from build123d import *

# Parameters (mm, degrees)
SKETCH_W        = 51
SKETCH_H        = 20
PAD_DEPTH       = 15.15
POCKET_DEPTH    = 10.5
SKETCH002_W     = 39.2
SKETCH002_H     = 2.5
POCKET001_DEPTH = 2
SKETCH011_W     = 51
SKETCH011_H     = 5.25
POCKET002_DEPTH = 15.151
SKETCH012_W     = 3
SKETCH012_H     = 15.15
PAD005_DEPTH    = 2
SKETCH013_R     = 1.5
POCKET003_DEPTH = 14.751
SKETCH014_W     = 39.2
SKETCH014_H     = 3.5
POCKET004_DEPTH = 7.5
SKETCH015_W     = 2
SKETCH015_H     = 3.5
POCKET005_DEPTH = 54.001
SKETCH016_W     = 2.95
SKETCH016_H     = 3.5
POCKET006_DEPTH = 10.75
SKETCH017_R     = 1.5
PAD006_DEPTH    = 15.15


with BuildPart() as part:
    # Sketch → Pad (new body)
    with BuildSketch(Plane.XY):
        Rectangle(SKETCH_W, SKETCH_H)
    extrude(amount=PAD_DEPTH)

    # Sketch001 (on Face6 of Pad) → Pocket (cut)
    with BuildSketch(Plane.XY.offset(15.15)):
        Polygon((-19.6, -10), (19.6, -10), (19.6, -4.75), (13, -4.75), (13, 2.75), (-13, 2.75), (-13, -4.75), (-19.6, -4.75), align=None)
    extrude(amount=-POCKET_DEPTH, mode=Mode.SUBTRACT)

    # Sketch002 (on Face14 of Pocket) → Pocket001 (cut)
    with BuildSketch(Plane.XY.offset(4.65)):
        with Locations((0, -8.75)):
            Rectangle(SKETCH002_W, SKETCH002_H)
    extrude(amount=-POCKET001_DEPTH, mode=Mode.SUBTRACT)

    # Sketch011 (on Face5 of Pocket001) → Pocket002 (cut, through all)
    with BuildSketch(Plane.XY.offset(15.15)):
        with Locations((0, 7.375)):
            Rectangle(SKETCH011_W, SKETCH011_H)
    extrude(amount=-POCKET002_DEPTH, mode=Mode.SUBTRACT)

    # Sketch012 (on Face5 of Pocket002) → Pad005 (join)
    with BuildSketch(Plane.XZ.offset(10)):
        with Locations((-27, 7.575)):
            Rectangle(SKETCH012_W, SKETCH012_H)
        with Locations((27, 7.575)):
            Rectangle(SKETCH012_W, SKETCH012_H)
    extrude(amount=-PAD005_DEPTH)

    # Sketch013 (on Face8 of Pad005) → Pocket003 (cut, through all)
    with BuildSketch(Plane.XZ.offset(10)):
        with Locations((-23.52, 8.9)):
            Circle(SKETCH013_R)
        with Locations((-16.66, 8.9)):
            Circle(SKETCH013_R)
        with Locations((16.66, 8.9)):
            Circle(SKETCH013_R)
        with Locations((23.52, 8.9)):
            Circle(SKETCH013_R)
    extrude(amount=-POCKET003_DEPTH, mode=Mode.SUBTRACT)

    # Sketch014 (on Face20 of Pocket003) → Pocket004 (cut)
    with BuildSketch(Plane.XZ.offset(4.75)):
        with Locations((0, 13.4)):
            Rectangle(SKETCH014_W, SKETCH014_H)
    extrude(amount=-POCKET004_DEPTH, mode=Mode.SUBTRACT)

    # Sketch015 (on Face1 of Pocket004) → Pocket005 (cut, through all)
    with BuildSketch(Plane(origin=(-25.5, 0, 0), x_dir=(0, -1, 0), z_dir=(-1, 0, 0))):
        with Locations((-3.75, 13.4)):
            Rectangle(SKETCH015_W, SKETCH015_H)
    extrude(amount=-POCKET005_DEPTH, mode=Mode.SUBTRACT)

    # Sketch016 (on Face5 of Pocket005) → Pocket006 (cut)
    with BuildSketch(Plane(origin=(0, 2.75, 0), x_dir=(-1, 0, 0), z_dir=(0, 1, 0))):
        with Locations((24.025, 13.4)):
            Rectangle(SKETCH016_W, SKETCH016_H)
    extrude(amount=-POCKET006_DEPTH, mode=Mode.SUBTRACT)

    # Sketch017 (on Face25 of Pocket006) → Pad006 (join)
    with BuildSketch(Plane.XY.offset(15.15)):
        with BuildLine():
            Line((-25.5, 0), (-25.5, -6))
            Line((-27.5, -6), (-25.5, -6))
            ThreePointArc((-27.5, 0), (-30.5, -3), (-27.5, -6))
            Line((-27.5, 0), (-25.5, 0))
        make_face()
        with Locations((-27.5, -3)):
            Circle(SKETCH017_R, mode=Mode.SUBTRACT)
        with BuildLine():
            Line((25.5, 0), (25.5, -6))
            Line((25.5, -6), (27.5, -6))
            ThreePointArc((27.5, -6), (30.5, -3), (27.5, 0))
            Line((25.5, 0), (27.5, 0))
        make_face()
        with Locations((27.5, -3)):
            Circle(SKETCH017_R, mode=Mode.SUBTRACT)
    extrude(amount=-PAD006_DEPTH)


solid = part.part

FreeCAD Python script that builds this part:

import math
import FreeCAD as App
import Part
import Sketcher

V = App.Vector
Q = App.Units.Quantity


def add_polygon(sketch, points):
    """Adds a closed chain of lines whose ends are joined by coincident constraints."""
    first, n = sketch.GeometryCount, len(points)
    for a, b in zip(points, points[1:] + points[:1]):
        sketch.addGeometry(Part.LineSegment(App.Vector(*a, 0), App.Vector(*b, 0)), False)
    for i in range(n):
        sketch.addConstraint(Sketcher.Constraint("Coincident", first + i, 2, first + (i + 1) % n, 1))

doc = App.newDocument("Part")
body = doc.addObject("PartDesign::Body", "Body")

# Sketch on XY plane
sketch1 = body.newObject("Sketcher::SketchObject", "Sketch")
sketch1.AttachmentSupport = (doc.getObject("XY_Plane"), [""])
sketch1.MapMode = "FlatFace"
add_polygon(sketch1, [(-26, 10), (-26, -10), (26, -10), (26, 10)])  # lines 0-3
sketch1.addConstraint([
    Sketcher.Constraint("Vertical", 0),
    Sketcher.Constraint("Horizontal", 1),
    Sketcher.Constraint("Vertical", 2),
    Sketcher.Constraint("Horizontal", 3),
    Sketcher.Constraint("Symmetric", 0, 2, 2, 2, -1, 1),
    Sketcher.Constraint("DistanceX", 1, 1, 1, 2, Q("51 mm")),
    Sketcher.Constraint("DistanceY", 0, 2, 0, 1, Q("20 mm")),
])
pad1 = body.newObject("PartDesign::Pad", "Pad")
pad1.Profile = sketch1
pad1.Length = 15.15

# Sketch on XY plane
sketch2 = body.newObject("Sketcher::SketchObject", "Sketch001")
sketch2.AttachmentSupport = (doc.getObject("XY_Plane"), [""])
sketch2.MapMode = "FlatFace"
sketch2.AttachmentOffset = App.Placement(V(0, 0, 15.15), App.Rotation())
add_polygon(sketch2, [(-20, -10), (20, -10), (20, -5), (13, -5), (13, 3), (-13, 3), (-13, -5), (-20, -5)])  # lines 0-7
sketch2.addConstraint([
    Sketcher.Constraint("Horizontal", 0),
    Sketcher.Constraint("Vertical", 1),
    Sketcher.Constraint("Horizontal", 2),
    Sketcher.Constraint("Vertical", 3),
    Sketcher.Constraint("Horizontal", 4),
    Sketcher.Constraint("Vertical", 5),
    Sketcher.Constraint("Horizontal", 6),
    Sketcher.Constraint("Vertical", 7),
    Sketcher.Constraint("Symmetric", 2, 2, 5, 2, -2),
    Sketcher.Constraint("Equal", 2, 6),
    Sketcher.Constraint("DistanceX", 4, 2, 4, 1, Q("26 mm")),
    Sketcher.Constraint("DistanceX", 0, 1, 0, 2, Q("39.2 mm")),
    Sketcher.Constraint("DistanceY", 3, 1, 3, 2, Q("7.5 mm")),
    Sketcher.Constraint("DistanceY", 0, 2, -1, 1, Q("10 mm")),
    Sketcher.Constraint("DistanceY", 1, 1, 1, 2, Q("5.25 mm")),
])
pocket1 = body.newObject("PartDesign::Pocket", "Pocket")
pocket1.Profile = sketch2
pocket1.Length = 10.5

# Sketch on XY plane
sketch3 = body.newObject("Sketcher::SketchObject", "Sketch002")
sketch3.AttachmentSupport = (doc.getObject("XY_Plane"), [""])
sketch3.MapMode = "FlatFace"
sketch3.AttachmentOffset = App.Placement(V(0, 0, 4.65), App.Rotation())
add_polygon(sketch3, [(-19.6, -7.5), (-19.6, -10), (19.6, -10), (19.6, -7.5)])  # lines 0-3
sketch3.addConstraint([
    Sketcher.Constraint("Vertical", 0),
    Sketcher.Constraint("Horizontal", 1),
    Sketcher.Constraint("Vertical", 2),
    Sketcher.Constraint("Horizontal", 3),
    Sketcher.Constraint("DistanceX", 1, 1, 1, 2, Q("39.2 mm")),
    Sketcher.Constraint("DistanceY", 0, 2, 0, 1, Q("2.5 mm")),
    Sketcher.Constraint("DistanceY", 0, 2, -1, 1, Q("10 mm")),
    Sketcher.Constraint("DistanceX", 0, 2, -1, 1, Q("19.6 mm")),
])
pocket2 = body.newObject("PartDesign::Pocket", "Pocket001")
pocket2.Profile = sketch3
pocket2.Length = 2

# Sketch on XY plane
sketch4 = body.newObject("Sketcher::SketchObject", "Sketch003")
sketch4.AttachmentSupport = (doc.getObject("XY_Plane"), [""])
sketch4.MapMode = "FlatFace"
sketch4.AttachmentOffset = App.Placement(V(0, 0, 15.15), App.Rotation())
add_polygon(sketch4, [(-26, 10), (-26, 5), (26, 5), (26, 10)])  # lines 0-3
sketch4.addConstraint([
    Sketcher.Constraint("Vertical", 0),
    Sketcher.Constraint("Horizontal", 1),
    Sketcher.Constraint("Vertical", 2),
    Sketcher.Constraint("Horizontal", 3),
    Sketcher.Constraint("DistanceX", 1, 1, 1, 2, Q("51 mm")),
    Sketcher.Constraint("DistanceY", -1, 1, 2, 2, Q("10 mm")),
    Sketcher.Constraint("DistanceY", 0, 2, 0, 1, Q("5.25 mm")),
    Sketcher.Constraint("DistanceX", 0, 2, -1, 1, Q("25.5 mm")),
])
pocket3 = body.newObject("PartDesign::Pocket", "Pocket002")
pocket3.Profile = sketch4
pocket3.Type = "ThroughAll"

# Sketch on XZ plane
sketch5 = body.newObject("Sketcher::SketchObject", "Sketch004")
sketch5.AttachmentSupport = (doc.getObject("XZ_Plane"), [""])
sketch5.MapMode = "FlatFace"
sketch5.AttachmentOffset = App.Placement(V(0, 0, 10), App.Rotation())
add_polygon(sketch5, [(-28.5, 15.2), (-28.5, 0), (-25.5, 0), (-25.5, 15.2)])  # lines 0-3
add_polygon(sketch5, [(25.5, 15.2), (25.5, 0), (28.5, 0), (28.5, 15.2)])  # lines 4-7
sketch5.addConstraint([
    Sketcher.Constraint("Vertical", 0),
    Sketcher.Constraint("Horizontal", 1),
    Sketcher.Constraint("Vertical", 2),
    Sketcher.Constraint("Horizontal", 3),
    Sketcher.Constraint("Vertical", 4),
    Sketcher.Constraint("Horizontal", 5),
    Sketcher.Constraint("Vertical", 6),
    Sketcher.Constraint("Horizontal", 7),
    Sketcher.Constraint("Symmetric", 1, 2, 4, 2, -1, 1),
    Sketcher.Constraint("Symmetric", 0, 2, 5, 2, -2),
    Sketcher.Constraint("Horizontal", 3, 2, 6, 2),
    Sketcher.Constraint("DistanceX", 1, 1, 1, 2, Q("3 mm")),
    Sketcher.Constraint("DistanceX", 1, 2, 4, 2, Q("51 mm")),
    Sketcher.Constraint("DistanceY", 0, 2, 0, 1, Q("15.15 mm")),
])
pad2 = body.newObject("PartDesign::Pad", "Pad001")
pad2.Profile = sketch5
pad2.Length = 2
pad2.Reversed = True

# Sketch on XZ plane
sketch6 = body.newObject("Sketcher::SketchObject", "Sketch005")
sketch6.AttachmentSupport = (doc.getObject("XZ_Plane"), [""])
sketch6.MapMode = "FlatFace"
sketch6.AttachmentOffset = App.Placement(V(0, 0, 10), App.Rotation())
sketch6.addGeometry([
    Part.Circle(V(-23.5, 8.9, 0), V(0, 0, 1), 1.5),
    Part.Circle(V(-16.7, 8.9, 0), V(0, 0, 1), 1.5),
    Part.Circle(V(16.7, 8.9, 0), V(0, 0, 1), 1.5),
    Part.Circle(V(23.5, 8.9, 0), V(0, 0, 1), 1.5),
], False)
sketch6.addConstraint([
    Sketcher.Constraint("Equal", 0, 1),
    Sketcher.Constraint("Equal", 1, 2),
    Sketcher.Constraint("Equal", 2, 3),
    Sketcher.Constraint("Symmetric", 1, 3, 2, 3, -2),
    Sketcher.Constraint("Symmetric", 0, 3, 3, 3, -2),
    Sketcher.Constraint("Horizontal", 0, 3, 1, 3),
    Sketcher.Constraint("Diameter", 0, Q("3 mm")),
    Sketcher.Constraint("DistanceY", -1, 1, 0, 3, Q("8.9 mm")),
    Sketcher.Constraint("DistanceX", 0, 3, -1, 1, Q("23.52 mm")),
    Sketcher.Constraint("DistanceX", 1, 3, -1, 1, Q("16.66 mm")),
])
pocket4 = body.newObject("PartDesign::Pocket", "Pocket003")
pocket4.Profile = sketch6
pocket4.Type = "ThroughAll"

# Sketch on XZ plane
sketch7 = body.newObject("Sketcher::SketchObject", "Sketch006")
sketch7.AttachmentSupport = (doc.getObject("XZ_Plane"), [""])
sketch7.MapMode = "FlatFace"
sketch7.AttachmentOffset = App.Placement(V(0, 0, 4.75), App.Rotation())
add_polygon(sketch7, [(-19.6, 15.2), (-19.6, 11.7), (19.6, 11.7), (19.6, 15.2)])  # lines 0-3
sketch7.addConstraint([
    Sketcher.Constraint("Vertical", 0),
    Sketcher.Constraint("Horizontal", 1),
    Sketcher.Constraint("Vertical", 2),
    Sketcher.Constraint("Horizontal", 3),
    Sketcher.Constraint("DistanceX", 1, 1, 1, 2, Q("39.2 mm")),
    Sketcher.Constraint("DistanceY", 0, 2, 0, 1, Q("3.5 mm")),
    Sketcher.Constraint("DistanceX", 0, 2, -1, 1, Q("19.6 mm")),
    Sketcher.Constraint("DistanceY", -1, 1, 0, 2, Q("11.65 mm")),
])
pocket5 = body.newObject("PartDesign::Pocket", "Pocket004")
pocket5.Profile = sketch7
pocket5.Length = 7.5

# Sketch on YZ plane
sketch8 = body.newObject("Sketcher::SketchObject", "Sketch007")
sketch8.AttachmentSupport = (doc.getObject("YZ_Plane"), [""])
sketch8.MapMode = "FlatFace"
sketch8.AttachmentOffset = App.Placement(V(0, 0, -25.5), App.Rotation())
add_polygon(sketch8, [(4.8, 15.2), (4.8, 11.7), (2.8, 11.7), (2.8, 15.2)])  # lines 0-3
sketch8.addConstraint([
    Sketcher.Constraint("Vertical", 0),
    Sketcher.Constraint("Horizontal", 1),
    Sketcher.Constraint("Vertical", 2),
    Sketcher.Constraint("Horizontal", 3),
    Sketcher.Constraint("DistanceX", 1, 2, 1, 1, Q("2 mm")),
    Sketcher.Constraint("DistanceY", 0, 2, 0, 1, Q("3.5 mm")),
    Sketcher.Constraint("DistanceX", -1, 1, 0, 2, Q("4.75 mm")),
    Sketcher.Constraint("DistanceY", -1, 1, 0, 2, Q("11.65 mm")),
])
pocket6 = body.newObject("PartDesign::Pocket", "Pocket005")
pocket6.Profile = sketch8
pocket6.Type = "ThroughAll"
pocket6.Reversed = True

# Sketch on XZ plane
sketch9 = body.newObject("Sketcher::SketchObject", "Sketch008")
sketch9.AttachmentSupport = (doc.getObject("XZ_Plane"), [""])
sketch9.MapMode = "FlatFace"
sketch9.AttachmentOffset = App.Placement(V(0, 0, -2.75), App.Rotation())
add_polygon(sketch9, [(-22.6, 15.2), (-22.6, 11.7), (-25.5, 11.7), (-25.5, 15.2)])  # lines 0-3
sketch9.addConstraint([
    Sketcher.Constraint("Vertical", 0),
    Sketcher.Constraint("Horizontal", 1),
    Sketcher.Constraint("Vertical", 2),
    Sketcher.Constraint("Horizontal", 3),
    Sketcher.Constraint("DistanceY", 0, 2, 0, 1, Q("3.5 mm")),
    Sketcher.Constraint("DistanceX", 1, 2, 1, 1, Q("2.95 mm")),
    Sketcher.Constraint("DistanceX", 1, 2, -1, 1, Q("25.5 mm")),
    Sketcher.Constraint("DistanceY", -1, 1, 0, 2, Q("11.65 mm")),
])
pocket7 = body.newObject("PartDesign::Pocket", "Pocket006")
pocket7.Profile = sketch9
pocket7.Length = 10.75
pocket7.Reversed = True

# Sketch on XY plane
sketch10 = body.newObject("Sketcher::SketchObject", "Sketch009")
sketch10.AttachmentSupport = (doc.getObject("XY_Plane"), [""])
sketch10.MapMode = "FlatFace"
sketch10.AttachmentOffset = App.Placement(V(0, 0, 15.15), App.Rotation())
sketch10.addGeometry([
    Part.LineSegment(V(-25.5, -6, 0), V(-25.5, 0, 0)),  # 0
    Part.LineSegment(V(-25.5, 0, 0), V(-27.5, 0, 0)),  # 1
    Part.ArcOfCircle(Part.Circle(V(-27.5, -3, 0), V(0, 0, 1), 3), math.radians(90), math.radians(270)),  # 2
    Part.LineSegment(V(-27.5, -6, 0), V(-25.5, -6, 0)),  # 3
    Part.Circle(V(-27.5, -3, 0), V(0, 0, 1), 1.5),  # 4
    Part.LineSegment(V(25.5, 0, 0), V(25.5, -6, 0)),  # 5
    Part.LineSegment(V(25.5, -6, 0), V(27.5, -6, 0)),  # 6
    Part.ArcOfCircle(Part.Circle(V(27.5, -3, 0), V(0, 0, 1), 3), math.radians(-90), math.radians(90)),  # 7
    Part.LineSegment(V(27.5, 0, 0), V(25.5, 0, 0)),  # 8
    Part.Circle(V(27.5, -3, 0), V(0, 0, 1), 1.5),  # 9
], False)
sketch10.addConstraint([
    Sketcher.Constraint("Coincident", 0, 2, 1, 1),
    Sketcher.Constraint("Tangent", 1, 2, 2, 1),
    Sketcher.Constraint("Tangent", 2, 2, 3, 1),
    Sketcher.Constraint("Coincident", 3, 2, 0, 1),
    Sketcher.Constraint("Coincident", 5, 2, 6, 1),
    Sketcher.Constraint("Tangent", 6, 2, 7, 1),
    Sketcher.Constraint("Tangent", 7, 2, 8, 1),
    Sketcher.Constraint("Coincident", 8, 2, 5, 1),
    Sketcher.Constraint("Vertical", 0),
    Sketcher.Constraint("Horizontal", 1),
    Sketcher.Constraint("Horizontal", 3),
    Sketcher.Constraint("Vertical", 5),
    Sketcher.Constraint("Horizontal", 6),
    Sketcher.Constraint("Horizontal", 8),
    Sketcher.Constraint("Coincident", 4, 3, 2, 3),
    Sketcher.Constraint("Coincident", 9, 3, 7, 3),
    Sketcher.Constraint("Equal", 2, 7),
    Sketcher.Constraint("Equal", 4, 9),
    Sketcher.Constraint("Symmetric", 1, 2, 7, 2, -1, 1),
    Sketcher.Constraint("Symmetric", 3, 2, 5, 2, -2),
    Sketcher.Constraint("Diameter", 4, Q("3 mm")),
    Sketcher.Constraint("Radius", 2, Q("3 mm")),
    Sketcher.Constraint("DistanceX", 1, 2, 1, 1, Q("2 mm")),
    Sketcher.Constraint("DistanceX", 2, 3, 7, 3, Q("55 mm")),
])
pad3 = body.newObject("PartDesign::Pad", "Pad002")
pad3.Profile = sketch10
pad3.Length = 15.15
pad3.Reversed = True

doc.recompute()
